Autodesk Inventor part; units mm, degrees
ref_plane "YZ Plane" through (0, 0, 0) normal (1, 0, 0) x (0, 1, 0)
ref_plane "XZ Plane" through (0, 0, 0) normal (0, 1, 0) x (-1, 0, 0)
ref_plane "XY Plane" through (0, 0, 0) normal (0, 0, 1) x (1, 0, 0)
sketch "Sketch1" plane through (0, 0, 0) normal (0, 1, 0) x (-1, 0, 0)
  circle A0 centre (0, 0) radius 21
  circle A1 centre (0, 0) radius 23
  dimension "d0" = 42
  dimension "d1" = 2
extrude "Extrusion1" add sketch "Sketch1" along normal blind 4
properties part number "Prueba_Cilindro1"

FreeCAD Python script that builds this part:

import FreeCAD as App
import Part
import Sketcher

V = App.Vector
Q = App.Units.Quantity

doc = App.newDocument("Part")
params = doc.addObject("Spreadsheet::Sheet", "Params")
for row, (alias, value) in enumerate([
    ("sketch1_diameter", "42 mm"),
    ("sketch1_diameter2", "46 mm"),
    ("pad1_length", "4 mm"),
], start=1):
    params.set(f"A{row}", alias)
    params.set(f"B{row}", "=" + value)
    params.setAlias(f"B{row}", alias)

body = doc.addObject("PartDesign::Body", "Body")

# Sketch on XZ plane
sketch1 = body.newObject("Sketcher::SketchObject", "Sketch")
sketch1.AttachmentSupport = (doc.getObject("XZ_Plane"), [""])
sketch1.MapMode = "FlatFace"
sketch1.addGeometry([
    Part.Circle(V(0, 0, 0), V(0, 0, 1), 23),
    Part.Circle(V(0, 0, 0), V(0, 0, 1), 21),
], False)
sketch1.addConstraint([
    Sketcher.Constraint("Coincident", 0, 3, -1, 1),
    Sketcher.Constraint("Coincident", 1, 3, -1, 1),
    Sketcher.Constraint("Diameter", 1, Q("42 mm")),
    Sketcher.Constraint("Diameter", 0, Q("46 mm")),
])
sketch1.setExpression("Constraints[2]", "Params.sketch1_diameter")
sketch1.setExpression("Constraints[3]", "Params.sketch1_diameter2")
pad1 = body.newObject("PartDesign::Pad", "Pad")
pad1.Profile = sketch1
pad1.setExpression("Length", "Params.pad1_length")
pad1.Reversed = True

doc.recompute()
